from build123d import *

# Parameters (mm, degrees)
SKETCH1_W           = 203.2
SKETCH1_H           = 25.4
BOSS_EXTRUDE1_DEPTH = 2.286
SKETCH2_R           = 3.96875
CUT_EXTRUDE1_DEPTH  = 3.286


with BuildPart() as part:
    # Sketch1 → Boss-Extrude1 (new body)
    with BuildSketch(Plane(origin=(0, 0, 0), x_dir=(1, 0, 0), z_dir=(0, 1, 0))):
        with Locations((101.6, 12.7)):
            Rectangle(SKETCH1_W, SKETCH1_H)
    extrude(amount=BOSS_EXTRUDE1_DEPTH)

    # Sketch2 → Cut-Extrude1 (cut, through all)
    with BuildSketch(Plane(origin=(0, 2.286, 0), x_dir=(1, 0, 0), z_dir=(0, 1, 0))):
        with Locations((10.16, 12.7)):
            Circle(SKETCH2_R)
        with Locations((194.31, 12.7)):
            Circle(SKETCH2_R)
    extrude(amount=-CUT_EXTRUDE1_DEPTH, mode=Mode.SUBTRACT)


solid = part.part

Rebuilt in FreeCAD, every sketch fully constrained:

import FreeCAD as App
import Part
import Sketcher
Q = App.Units.Quantity

doc = App.newDocument("Part")
params = doc.addObject("Spreadsheet::Sheet", "Params")
for row, (alias, value) in enumerate([
    ("sketch1_width", "8 in"),
    ("sketch1_height", "1 in"),
    ("pad1_length", "0.09 in"),
    ("sketch2_diameter", "0.3125 in"),
], start=1):
    params.set(f"A{row}", alias)
    params.set(f"B{row}", "=" + value)
    params.setAlias(f"B{row}", alias)

body = doc.addObject("PartDesign::Body", "Body")

sketch1 = body.newObject("Sketcher::SketchObject", "Sketch")
sketch1.AttachmentSupport = (doc.getObject("XZ_Plane"), [""])
sketch1.MapMode = "FlatFace"
sketch1.addGeometry(Part.LineSegment(App.Vector(0, -25.4, 0), App.Vector(0, 0, 0)), False)
sketch1.addGeometry(Part.LineSegment(App.Vector(0, 0, 0), App.Vector(203.2, 0, 0)), False)
sketch1.addGeometry(Part.LineSegment(App.Vector(203.2, 0, 0), App.Vector(203.2, -25.4, 0)), False)
sketch1.addGeometry(Part.LineSegment(App.Vector(203.2, -25.4, 0), App.Vector(0, -25.4, 0)), False)
sketch1.addConstraint(Sketcher.Constraint("Coincident", 0, 2, 1, 1))
sketch1.addConstraint(Sketcher.Constraint("Coincident", 1, 2, 2, 1))
sketch1.addConstraint(Sketcher.Constraint("Coincident", 2, 2, 3, 1))
sketch1.addConstraint(Sketcher.Constraint("Coincident", 3, 2, 0, 1))
sketch1.addConstraint(Sketcher.Constraint("Vertical", 0))
sketch1.addConstraint(Sketcher.Constraint("Horizontal", 1))
sketch1.addConstraint(Sketcher.Constraint("Vertical", 2))
sketch1.addConstraint(Sketcher.Constraint("Horizontal", 3))
sketch1.addConstraint(Sketcher.Constraint("Coincident", 0, 2, -1, 1))
sketch1.addConstraint(Sketcher.Constraint("DistanceX", 1, 1, 1, 2, Q("8 in")))
sketch1.addConstraint(Sketcher.Constraint("DistanceY", 0, 1, 0, 2, Q("1 in")))
sketch1.setExpression("Constraints[9]", "Params.sketch1_width")
sketch1.setExpression("Constraints[10]", "Params.sketch1_height")
pad1 = body.newObject("PartDesign::Pad", "Pad")
pad1.Profile = sketch1
pad1.setExpression("Length", "Params.pad1_length")
pad1.Reversed = True

sketch2 = body.newObject("Sketcher::SketchObject", "Sketch001")
sketch2.AttachmentSupport = (doc.getObject("XZ_Plane"), [""])
sketch2.MapMode = "FlatFace"
sketch2.AttachmentOffset = App.Placement(App.Vector(0, 0, -0.09 * 25.4), App.Rotation())
sketch2.addGeometry(Part.Circle(App.Vector(10.16, -12.7, 0), App.Vector(0, 0, 1), 3.96875), False)
sketch2.addGeometry(Part.Circle(App.Vector(194.31, -12.7, 0), App.Vector(0, 0, 1), 3.96875), False)
sketch2.addConstraint(Sketcher.Constraint("Equal", 0, 1))
sketch2.addConstraint(Sketcher.Constraint("Horizontal", 0, 3, 1, 3))
sketch2.addConstraint(Sketcher.Constraint("Diameter", 0, Q("0.3125 in")))
sketch2.addConstraint(Sketcher.Constraint("DistanceX", -1, 1, 0, 3, Q("0.4 in")))
sketch2.addConstraint(Sketcher.Constraint("DistanceY", 0, 3, -1, 1, Q("0.5 in")))
sketch2.addConstraint(Sketcher.Constraint("DistanceX", -1, 1, 1, 3, Q("7.65 in")))
sketch2.setExpression("Constraints[2]", "Params.sketch2_diameter")
pocket1 = body.newObject("PartDesign::Pocket", "Pocket")
pocket1.Profile = sketch2
pocket1.Type = "ThroughAll"
pocket1.Reversed = True

doc.recompute()
